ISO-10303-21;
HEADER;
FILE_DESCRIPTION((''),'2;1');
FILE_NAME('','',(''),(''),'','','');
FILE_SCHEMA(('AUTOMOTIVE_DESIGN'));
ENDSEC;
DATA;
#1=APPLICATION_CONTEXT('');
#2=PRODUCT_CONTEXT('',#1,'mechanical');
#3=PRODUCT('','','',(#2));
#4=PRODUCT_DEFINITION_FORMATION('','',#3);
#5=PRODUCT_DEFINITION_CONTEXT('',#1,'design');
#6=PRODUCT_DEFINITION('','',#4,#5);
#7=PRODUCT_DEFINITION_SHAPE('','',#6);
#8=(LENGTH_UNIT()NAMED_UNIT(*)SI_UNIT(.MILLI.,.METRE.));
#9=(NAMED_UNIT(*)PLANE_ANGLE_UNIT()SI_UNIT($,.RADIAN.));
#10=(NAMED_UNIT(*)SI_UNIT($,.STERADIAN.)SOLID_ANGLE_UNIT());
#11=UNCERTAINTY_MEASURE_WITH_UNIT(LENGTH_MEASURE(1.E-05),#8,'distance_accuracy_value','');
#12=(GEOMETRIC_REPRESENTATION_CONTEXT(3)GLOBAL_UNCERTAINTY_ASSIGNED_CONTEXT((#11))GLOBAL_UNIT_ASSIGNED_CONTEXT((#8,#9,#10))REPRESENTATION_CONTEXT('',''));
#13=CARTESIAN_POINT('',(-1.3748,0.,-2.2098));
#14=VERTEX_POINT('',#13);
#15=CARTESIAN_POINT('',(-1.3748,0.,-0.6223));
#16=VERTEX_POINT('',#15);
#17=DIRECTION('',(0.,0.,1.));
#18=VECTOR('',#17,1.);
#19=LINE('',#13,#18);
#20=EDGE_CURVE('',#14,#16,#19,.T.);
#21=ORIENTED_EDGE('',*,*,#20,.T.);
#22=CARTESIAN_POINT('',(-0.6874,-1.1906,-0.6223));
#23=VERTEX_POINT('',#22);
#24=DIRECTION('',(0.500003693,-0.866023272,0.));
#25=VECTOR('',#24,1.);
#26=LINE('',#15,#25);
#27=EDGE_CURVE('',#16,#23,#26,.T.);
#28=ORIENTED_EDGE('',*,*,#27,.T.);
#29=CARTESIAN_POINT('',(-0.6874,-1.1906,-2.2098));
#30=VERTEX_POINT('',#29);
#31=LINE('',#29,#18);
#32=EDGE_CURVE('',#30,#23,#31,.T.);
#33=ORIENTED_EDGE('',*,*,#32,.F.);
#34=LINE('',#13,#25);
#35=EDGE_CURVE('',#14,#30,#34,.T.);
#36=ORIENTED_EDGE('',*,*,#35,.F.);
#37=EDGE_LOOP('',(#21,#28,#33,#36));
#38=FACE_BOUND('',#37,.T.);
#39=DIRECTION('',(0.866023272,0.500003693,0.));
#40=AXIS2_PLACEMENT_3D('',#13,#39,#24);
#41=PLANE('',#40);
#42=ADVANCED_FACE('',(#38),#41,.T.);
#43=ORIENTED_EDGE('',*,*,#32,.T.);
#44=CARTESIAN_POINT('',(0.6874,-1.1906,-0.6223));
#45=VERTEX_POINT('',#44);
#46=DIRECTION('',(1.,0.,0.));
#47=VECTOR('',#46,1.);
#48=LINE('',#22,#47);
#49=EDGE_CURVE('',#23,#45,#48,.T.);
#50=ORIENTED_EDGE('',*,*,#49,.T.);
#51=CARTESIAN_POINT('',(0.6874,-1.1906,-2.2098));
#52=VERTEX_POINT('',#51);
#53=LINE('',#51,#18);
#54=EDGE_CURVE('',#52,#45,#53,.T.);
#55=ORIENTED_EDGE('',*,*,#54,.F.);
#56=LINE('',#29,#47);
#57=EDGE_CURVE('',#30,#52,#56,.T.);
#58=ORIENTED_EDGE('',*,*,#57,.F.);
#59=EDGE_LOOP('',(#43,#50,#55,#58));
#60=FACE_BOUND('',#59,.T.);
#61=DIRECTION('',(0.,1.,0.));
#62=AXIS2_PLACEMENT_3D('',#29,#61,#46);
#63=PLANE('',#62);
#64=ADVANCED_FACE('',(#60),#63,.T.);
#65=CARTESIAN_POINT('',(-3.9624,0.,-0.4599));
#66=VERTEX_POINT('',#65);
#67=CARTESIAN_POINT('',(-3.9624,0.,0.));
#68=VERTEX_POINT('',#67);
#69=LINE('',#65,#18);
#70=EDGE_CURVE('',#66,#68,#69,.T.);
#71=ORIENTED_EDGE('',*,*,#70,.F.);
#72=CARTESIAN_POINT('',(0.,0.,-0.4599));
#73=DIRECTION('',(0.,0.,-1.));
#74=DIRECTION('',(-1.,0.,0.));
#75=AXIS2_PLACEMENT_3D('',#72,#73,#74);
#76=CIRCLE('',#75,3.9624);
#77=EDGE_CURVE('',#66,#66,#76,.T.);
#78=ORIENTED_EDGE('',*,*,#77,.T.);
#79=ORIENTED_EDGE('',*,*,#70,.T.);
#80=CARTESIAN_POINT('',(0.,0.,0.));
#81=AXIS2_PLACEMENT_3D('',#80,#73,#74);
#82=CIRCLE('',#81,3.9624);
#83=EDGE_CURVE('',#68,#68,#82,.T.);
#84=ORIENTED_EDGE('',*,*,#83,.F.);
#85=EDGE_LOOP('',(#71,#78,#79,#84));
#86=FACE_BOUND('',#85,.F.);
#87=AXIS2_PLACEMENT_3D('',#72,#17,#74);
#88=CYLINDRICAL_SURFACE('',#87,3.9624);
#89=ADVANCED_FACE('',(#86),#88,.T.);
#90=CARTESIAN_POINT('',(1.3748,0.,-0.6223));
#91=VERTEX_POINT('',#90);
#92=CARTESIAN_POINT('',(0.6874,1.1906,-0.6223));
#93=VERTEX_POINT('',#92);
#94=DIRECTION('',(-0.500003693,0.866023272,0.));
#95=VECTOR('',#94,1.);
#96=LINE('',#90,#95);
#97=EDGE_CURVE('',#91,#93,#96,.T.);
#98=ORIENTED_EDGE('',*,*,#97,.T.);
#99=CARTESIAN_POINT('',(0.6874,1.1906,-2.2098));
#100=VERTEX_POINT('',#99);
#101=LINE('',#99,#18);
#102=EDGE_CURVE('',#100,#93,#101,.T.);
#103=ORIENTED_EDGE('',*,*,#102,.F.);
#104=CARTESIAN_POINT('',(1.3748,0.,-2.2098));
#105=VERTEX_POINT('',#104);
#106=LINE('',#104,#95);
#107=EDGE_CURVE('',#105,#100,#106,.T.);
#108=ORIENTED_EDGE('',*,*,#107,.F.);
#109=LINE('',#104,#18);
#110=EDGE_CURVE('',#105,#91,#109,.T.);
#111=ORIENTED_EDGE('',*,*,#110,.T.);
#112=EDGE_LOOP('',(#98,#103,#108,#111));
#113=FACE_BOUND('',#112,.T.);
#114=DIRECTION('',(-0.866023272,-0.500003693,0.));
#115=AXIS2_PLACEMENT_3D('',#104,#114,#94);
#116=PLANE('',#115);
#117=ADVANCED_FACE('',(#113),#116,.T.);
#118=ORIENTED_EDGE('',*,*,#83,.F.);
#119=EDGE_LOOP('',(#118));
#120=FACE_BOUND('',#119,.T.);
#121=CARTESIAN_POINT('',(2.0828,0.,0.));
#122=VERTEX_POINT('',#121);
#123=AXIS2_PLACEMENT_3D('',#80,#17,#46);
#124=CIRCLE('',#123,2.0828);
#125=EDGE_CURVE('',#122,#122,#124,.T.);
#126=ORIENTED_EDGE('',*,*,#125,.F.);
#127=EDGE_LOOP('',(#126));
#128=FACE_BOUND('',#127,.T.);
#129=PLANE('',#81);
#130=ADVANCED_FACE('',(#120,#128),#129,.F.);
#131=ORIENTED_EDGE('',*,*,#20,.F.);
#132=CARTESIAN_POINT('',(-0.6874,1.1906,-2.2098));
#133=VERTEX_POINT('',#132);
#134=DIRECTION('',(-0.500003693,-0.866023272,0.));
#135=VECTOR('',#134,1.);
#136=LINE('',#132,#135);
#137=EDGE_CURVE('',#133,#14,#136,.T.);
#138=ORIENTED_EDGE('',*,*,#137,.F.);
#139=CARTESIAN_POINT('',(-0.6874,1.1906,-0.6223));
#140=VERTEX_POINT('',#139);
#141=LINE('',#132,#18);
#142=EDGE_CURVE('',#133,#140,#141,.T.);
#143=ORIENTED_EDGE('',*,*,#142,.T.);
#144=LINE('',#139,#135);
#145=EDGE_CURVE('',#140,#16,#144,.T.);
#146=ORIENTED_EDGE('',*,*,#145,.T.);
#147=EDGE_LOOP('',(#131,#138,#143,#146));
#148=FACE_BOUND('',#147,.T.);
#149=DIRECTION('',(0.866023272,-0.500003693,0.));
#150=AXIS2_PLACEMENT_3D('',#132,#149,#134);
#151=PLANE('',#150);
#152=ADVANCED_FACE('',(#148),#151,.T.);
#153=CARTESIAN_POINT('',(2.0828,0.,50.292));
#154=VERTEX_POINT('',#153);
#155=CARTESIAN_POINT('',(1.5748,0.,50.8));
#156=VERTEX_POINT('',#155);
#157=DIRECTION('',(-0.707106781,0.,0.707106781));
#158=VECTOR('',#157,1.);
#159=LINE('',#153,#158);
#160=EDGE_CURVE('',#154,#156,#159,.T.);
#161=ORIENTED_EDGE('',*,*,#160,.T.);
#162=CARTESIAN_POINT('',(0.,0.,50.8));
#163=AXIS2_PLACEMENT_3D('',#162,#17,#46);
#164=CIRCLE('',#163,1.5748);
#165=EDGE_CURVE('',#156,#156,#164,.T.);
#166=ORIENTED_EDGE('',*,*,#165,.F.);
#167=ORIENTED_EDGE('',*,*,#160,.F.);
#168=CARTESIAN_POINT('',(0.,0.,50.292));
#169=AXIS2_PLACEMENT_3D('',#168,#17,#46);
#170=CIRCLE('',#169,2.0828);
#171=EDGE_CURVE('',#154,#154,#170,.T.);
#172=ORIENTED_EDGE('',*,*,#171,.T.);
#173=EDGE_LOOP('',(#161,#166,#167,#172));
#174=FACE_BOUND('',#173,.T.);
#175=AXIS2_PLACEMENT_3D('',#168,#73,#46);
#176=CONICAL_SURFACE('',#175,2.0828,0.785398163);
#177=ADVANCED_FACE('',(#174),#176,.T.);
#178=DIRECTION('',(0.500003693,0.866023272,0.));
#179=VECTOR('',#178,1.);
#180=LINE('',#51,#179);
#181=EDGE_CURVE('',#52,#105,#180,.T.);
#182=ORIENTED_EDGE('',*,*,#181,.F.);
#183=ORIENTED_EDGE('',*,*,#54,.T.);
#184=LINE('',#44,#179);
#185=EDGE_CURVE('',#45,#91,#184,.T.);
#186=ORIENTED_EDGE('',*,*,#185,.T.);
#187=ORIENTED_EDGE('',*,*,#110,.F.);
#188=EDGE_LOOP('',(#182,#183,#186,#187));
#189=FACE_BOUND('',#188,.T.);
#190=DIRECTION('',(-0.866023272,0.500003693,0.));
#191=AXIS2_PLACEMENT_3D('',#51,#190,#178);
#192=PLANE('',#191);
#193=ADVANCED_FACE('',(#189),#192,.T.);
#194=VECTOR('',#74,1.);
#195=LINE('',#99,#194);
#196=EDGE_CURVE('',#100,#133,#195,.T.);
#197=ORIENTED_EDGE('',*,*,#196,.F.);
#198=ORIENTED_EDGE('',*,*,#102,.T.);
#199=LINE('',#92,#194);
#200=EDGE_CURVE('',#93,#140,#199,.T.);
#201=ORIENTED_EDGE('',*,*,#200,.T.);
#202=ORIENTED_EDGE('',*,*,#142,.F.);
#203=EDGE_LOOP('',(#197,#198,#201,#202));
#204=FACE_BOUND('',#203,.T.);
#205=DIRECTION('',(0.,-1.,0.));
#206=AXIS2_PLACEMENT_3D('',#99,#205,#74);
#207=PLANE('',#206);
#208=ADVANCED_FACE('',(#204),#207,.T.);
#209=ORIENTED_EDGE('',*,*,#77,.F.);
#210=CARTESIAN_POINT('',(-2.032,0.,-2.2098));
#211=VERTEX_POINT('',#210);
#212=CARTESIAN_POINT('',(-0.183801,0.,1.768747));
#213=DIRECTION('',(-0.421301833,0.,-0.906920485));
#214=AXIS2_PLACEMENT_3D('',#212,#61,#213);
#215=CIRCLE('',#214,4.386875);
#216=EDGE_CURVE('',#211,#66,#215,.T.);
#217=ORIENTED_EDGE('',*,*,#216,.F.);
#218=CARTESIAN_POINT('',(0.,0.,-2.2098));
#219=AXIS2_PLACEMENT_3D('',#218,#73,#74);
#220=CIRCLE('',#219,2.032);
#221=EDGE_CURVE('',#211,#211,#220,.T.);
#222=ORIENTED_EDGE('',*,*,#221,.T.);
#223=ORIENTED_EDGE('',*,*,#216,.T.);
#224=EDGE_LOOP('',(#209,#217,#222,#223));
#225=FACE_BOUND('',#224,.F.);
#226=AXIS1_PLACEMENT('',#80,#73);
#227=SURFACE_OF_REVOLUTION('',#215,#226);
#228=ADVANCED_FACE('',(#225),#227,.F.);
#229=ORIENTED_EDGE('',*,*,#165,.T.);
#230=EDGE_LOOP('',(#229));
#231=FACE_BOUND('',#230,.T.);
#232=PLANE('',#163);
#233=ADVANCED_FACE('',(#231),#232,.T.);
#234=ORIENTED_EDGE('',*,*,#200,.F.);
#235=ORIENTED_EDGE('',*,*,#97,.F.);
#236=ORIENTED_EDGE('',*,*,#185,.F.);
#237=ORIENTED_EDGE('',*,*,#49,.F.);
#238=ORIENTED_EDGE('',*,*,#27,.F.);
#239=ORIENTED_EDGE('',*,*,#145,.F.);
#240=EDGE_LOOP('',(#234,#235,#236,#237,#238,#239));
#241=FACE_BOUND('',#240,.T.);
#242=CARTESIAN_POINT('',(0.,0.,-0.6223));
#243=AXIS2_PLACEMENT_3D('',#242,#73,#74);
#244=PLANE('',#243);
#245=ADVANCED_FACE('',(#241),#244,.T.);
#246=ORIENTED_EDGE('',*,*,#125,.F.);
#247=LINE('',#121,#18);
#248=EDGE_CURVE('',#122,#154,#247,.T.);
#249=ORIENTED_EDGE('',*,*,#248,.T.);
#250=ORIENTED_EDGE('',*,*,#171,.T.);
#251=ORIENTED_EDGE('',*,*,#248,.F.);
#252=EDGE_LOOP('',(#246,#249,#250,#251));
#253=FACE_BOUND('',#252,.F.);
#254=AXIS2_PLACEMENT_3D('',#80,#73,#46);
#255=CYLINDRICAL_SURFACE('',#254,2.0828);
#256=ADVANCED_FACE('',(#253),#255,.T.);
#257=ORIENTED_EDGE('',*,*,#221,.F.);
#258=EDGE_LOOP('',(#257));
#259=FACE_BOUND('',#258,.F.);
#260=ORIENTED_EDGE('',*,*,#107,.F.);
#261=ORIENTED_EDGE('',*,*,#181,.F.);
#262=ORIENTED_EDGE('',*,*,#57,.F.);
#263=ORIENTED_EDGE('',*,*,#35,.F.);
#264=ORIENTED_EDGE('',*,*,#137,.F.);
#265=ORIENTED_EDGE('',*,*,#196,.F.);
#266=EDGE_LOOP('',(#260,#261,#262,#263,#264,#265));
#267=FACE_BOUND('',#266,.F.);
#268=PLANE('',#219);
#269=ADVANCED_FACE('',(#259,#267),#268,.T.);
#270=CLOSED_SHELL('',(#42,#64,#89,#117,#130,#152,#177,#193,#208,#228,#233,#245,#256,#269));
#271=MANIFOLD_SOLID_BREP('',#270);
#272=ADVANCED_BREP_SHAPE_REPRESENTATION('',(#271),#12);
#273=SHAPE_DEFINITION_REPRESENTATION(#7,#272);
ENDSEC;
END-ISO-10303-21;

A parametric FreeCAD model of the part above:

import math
import FreeCAD as App
import Part
import Sketcher
from FreeCAD import Vector
Q = App.Units.Quantity


def edges_at(feature, points):
    """Names of the edges that pass closest to the given points."""
    edges = feature.Shape.Edges
    near = lambda p: min(range(len(edges)), key=lambda i: edges[i].distToShape(Part.Vertex(*p))[0])
    return sorted({f"Edge{near(p) + 1}" for p in points})


def add_polygon(sketch, points):
    """Adds a closed chain of lines whose ends are joined by coincident constraints."""
    first, n = sketch.GeometryCount, len(points)
    for a, b in zip(points, points[1:] + points[:1]):
        sketch.addGeometry(Part.LineSegment(App.Vector(*a, 0), App.Vector(*b, 0)), False)
    for i in range(n):
        sketch.addConstraint(Sketcher.Constraint("Coincident", first + i, 2, first + (i + 1) % n, 1))

doc = App.newDocument("Part")
body = doc.addObject("PartDesign::Body", "Body")

sketch1 = body.newObject("Sketcher::SketchObject", "Sketch")
sketch1.AttachmentSupport = (doc.getObject("XY_Plane"), [""])
sketch1.MapMode = "FlatFace"
sketch1.addGeometry(Part.Circle(Vector(0, 0, 0), Vector(0, 0, 1), 2.1), False)
sketch1.addConstraint(Sketcher.Constraint("Coincident", 0, 3, -1, 1))
sketch1.addConstraint(Sketcher.Constraint("Diameter", 0, Q("0.164 in")))
pad1 = body.newObject("PartDesign::Pad", "Pad")
pad1.Profile = sketch1
pad1.Length = Q("2 in")

sketch2 = body.newObject("Sketcher::SketchObject", "Sketch001")
sketch2.AttachmentSupport = (doc.getObject("XZ_Plane"), [""])
sketch2.MapMode = "FlatFace"
sketch2.addGeometry(Part.LineSegment(Vector(-3.96, 0, 0), Vector(0, 0, 0)), False)
sketch2.addGeometry(Part.LineSegment(Vector(0, 0, 0), Vector(0, -2.21, 0)), False)
sketch2.addGeometry(Part.LineSegment(Vector(0, -2.21, 0), Vector(-2.03, -2.21, 0)), False)
sketch2.addGeometry(Part.ArcOfCircle(Part.Circle(Vector(-0.18, 1.77, 0), Vector(0, 0, 1), 4.39), math.radians(-149), math.radians(-115)), False)
sketch2.addGeometry(Part.LineSegment(Vector(-3.96, -0.46, 0), Vector(-3.96, 0, 0)), False)
sketch2.addConstraint(Sketcher.Constraint("Coincident", 0, 2, 1, 1))
sketch2.addConstraint(Sketcher.Constraint("Coincident", 1, 2, 2, 1))
sketch2.addConstraint(Sketcher.Constraint("Coincident", 2, 2, 3, 2))
sketch2.addConstraint(Sketcher.Constraint("Coincident", 3, 1, 4, 1))
sketch2.addConstraint(Sketcher.Constraint("Coincident", 4, 2, 0, 1))
sketch2.addConstraint(Sketcher.Constraint("Horizontal", 0))
sketch2.addConstraint(Sketcher.Constraint("Vertical", 1))
sketch2.addConstraint(Sketcher.Constraint("Horizontal", 2))
sketch2.addConstraint(Sketcher.Constraint("Vertical", 4))
sketch2.addConstraint(Sketcher.Constraint("Coincident", 0, 2, -1, 1))
sketch2.addConstraint(Sketcher.Constraint("DistanceX", 2, 2, 2, 1, Q("0.08 in")))
sketch2.addConstraint(Sketcher.Constraint("DistanceX", 0, 1, 0, 2, Q("0.156 in")))
sketch2.addConstraint(Sketcher.Constraint("DistanceY", 1, 2, 1, 1, Q("0.087 in")))
sketch2.addConstraint(Sketcher.Constraint("Radius", 3, Q("4.387 mm")))
sketch2.addConstraint(Sketcher.Constraint("DistanceY", 4, 1, 4, 2, Q("0.0181 in")))
revolution = body.newObject("PartDesign::Revolution", "Revolution")
revolution.Profile = sketch2
revolution.ReferenceAxis = (sketch2, ["V_Axis"])
revolution.Angle = 360

sketch3 = body.newObject("Sketcher::SketchObject", "Sketch002")
sketch3.AttachmentSupport = (doc.getObject("XY_Plane"), [""])
sketch3.MapMode = "FlatFace"
sketch3.AttachmentOffset = App.Placement(Vector(0, 0, -0.087 * 25.4), App.Rotation())
add_polygon(sketch3, [(-0.7, 1.2), (0.7, 1.2), (1.4, 0), (0.7, -1.2), (-0.7, -1.2), (-1.4, 0)])
sketch3.addConstraint(Sketcher.Constraint("Horizontal", 0))
sketch3.addConstraint(Sketcher.Constraint("Horizontal", 3))
sketch3.addConstraint(Sketcher.Constraint("Symmetric", 0, 2, 3, 2, -1, 1))
sketch3.addConstraint(Sketcher.Constraint("Symmetric", 1, 2, 4, 2, -1, 1))
sketch3.addConstraint(Sketcher.Constraint("PointOnObject", 1, 2, -1))
sketch3.addConstraint(Sketcher.Constraint("Parallel", 2, 5))
sketch3.addConstraint(Sketcher.Constraint("Vertical", 0, 2, 2, 2))
sketch3.addConstraint(Sketcher.Constraint("Angle", 1, Q("-59.9998 deg")))
sketch3.addConstraint(Sketcher.Constraint("DistanceY", 2, 2, 0, 2, Q("0.093748 in")))
sketch3.addConstraint(Sketcher.Constraint("DistanceX", 0, 1, 0, 2, Q("1.3748 mm")))
pocket1 = body.newObject("PartDesign::Pocket", "Pocket")
pocket1.Profile = sketch3
pocket1.Length = Q("0.0625 in")
pocket1.Reversed = True
doc.recompute()

chamfer = body.newObject("PartDesign::Chamfer", "Chamfer")
chamfer.Base = (pocket1, edges_at(pocket1, [(-2.083, 0, 50.8)]))
chamfer.Size = Q("0.02 in")

doc.recompute()
